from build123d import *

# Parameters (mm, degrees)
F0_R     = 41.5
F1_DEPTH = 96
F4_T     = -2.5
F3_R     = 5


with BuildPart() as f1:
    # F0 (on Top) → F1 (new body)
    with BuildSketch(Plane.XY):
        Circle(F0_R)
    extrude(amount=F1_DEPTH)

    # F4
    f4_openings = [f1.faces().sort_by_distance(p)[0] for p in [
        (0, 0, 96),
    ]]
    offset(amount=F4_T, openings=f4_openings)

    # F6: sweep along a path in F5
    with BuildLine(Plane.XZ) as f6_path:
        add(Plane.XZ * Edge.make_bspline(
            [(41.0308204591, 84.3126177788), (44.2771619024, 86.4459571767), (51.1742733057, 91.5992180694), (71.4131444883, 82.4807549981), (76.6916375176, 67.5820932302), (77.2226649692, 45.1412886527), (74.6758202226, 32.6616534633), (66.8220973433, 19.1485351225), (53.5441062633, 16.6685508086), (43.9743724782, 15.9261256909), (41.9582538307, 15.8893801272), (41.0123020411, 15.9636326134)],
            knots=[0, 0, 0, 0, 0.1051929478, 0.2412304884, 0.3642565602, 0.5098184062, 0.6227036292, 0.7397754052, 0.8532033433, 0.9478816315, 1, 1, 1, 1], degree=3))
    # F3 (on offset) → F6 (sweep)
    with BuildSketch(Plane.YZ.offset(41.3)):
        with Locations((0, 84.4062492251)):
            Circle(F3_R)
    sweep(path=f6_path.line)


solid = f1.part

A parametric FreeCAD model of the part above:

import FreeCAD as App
import Part
import Sketcher
Q = App.Units.Quantity


def faces_at(feature, points):
    """Names of the faces that lie closest to the given points."""
    faces = feature.Shape.Faces
    near = lambda p: min(range(len(faces)), key=lambda i: faces[i].distToShape(Part.Vertex(*p))[0])
    return sorted({f"Face{near(p) + 1}" for p in points})

doc = App.newDocument("Part")
params = doc.addObject("Spreadsheet::Sheet", "Params")
for row, (alias, value) in enumerate([
    ("sketch1_diameter", "83 mm"),
    ("pad1_length", "96 mm"),
    ("thickness_wall", "2.5 mm"),
    ("sketch2_diameter", "10 mm"),
], start=1):
    params.set(f"A{row}", alias)
    params.set(f"B{row}", "=" + value)
    params.setAlias(f"B{row}", alias)

body = doc.addObject("PartDesign::Body", "Body")

sketch1 = doc.addObject("Sketcher::SketchObject", "Sketch")
body.addObject(sketch1)
sketch1.AttachmentSupport = (doc.XY_Plane, [""])
sketch1.MapMode = "FlatFace"
sketch1.addGeometry(Part.Circle(App.Vector(0, 0, 0), App.Vector(0, 0, 1), 41.5), False)
sketch1.addConstraint(Sketcher.Constraint("Coincident", 0, 3, -1, 1))
sketch1.addConstraint(Sketcher.Constraint("Diameter", 0, Q("83 mm")))
sketch1.setExpression("Constraints[1]", "Params.sketch1_diameter")
pad1 = doc.addObject("PartDesign::Pad", "Pad")
body.addObject(pad1)
pad1.Profile = sketch1
pad1.setExpression("Length", "Params.pad1_length")
doc.recompute()

thickness = doc.addObject("PartDesign::Thickness", "Thickness")
body.addObject(thickness)
thickness.Base = (pad1, faces_at(pad1, [(0, 0, 96)]))
thickness.setExpression("Value", "Params.thickness_wall")
thickness.Reversed = True
thickness.Join = "Arc"

sketch2 = doc.addObject("Sketcher::SketchObject", "Sketch001")
body.addObject(sketch2)
sketch2.AttachmentSupport = (doc.YZ_Plane, [""])
sketch2.MapMode = "FlatFace"
sketch2.AttachmentOffset = App.Placement(App.Vector(0, 0, 41.3), App.Rotation())
sketch2.addGeometry(Part.Circle(App.Vector(0, 84.406249, 0), App.Vector(0, 0, 1), 5), False)
sketch2.addConstraint(Sketcher.Constraint("PointOnObject", 0, 3, -2))
sketch2.addConstraint(Sketcher.Constraint("Diameter", 0, Q("10 mm")))
sketch2.addConstraint(Sketcher.Constraint("DistanceY", -1, 1, 0, 3, Q("84.406249 mm")))
sketch2.setExpression("Constraints[1]", "Params.sketch2_diameter")

sketch3 = doc.addObject("Sketcher::SketchObject", "Sketch002")
body.addObject(sketch3)
sketch3.AttachmentSupport = (doc.XZ_Plane, [""])
sketch3.MapMode = "FlatFace"
sketch3.addGeometry(Part.BSplineCurve([App.Vector(41.03082, 84.312618, 0), App.Vector(44.277162, 86.445957, 0), App.Vector(51.174273, 91.599218, 0), App.Vector(71.413144, 82.480755, 0), App.Vector(76.691638, 67.582093, 0), App.Vector(77.222665, 45.141289, 0), App.Vector(74.67582, 32.661653, 0), App.Vector(66.822097, 19.148535, 0), App.Vector(53.544106, 16.668551, 0), App.Vector(43.974372, 15.926126, 0), App.Vector(41.958254, 15.88938, 0), App.Vector(41.012302, 15.963633, 0)], [4, 1, 1, 1, 1, 1, 1, 1, 1, 4], [0, 0.105192948, 0.241230488, 0.36425656, 0.509818406, 0.622703629, 0.739775405, 0.853203343, 0.947881632, 1], False, 3, [1, 1, 1, 1, 1, 1, 1, 1, 1, 1, 1, 1], False), False)
sketch3.addConstraint(Sketcher.Constraint("Block", 0))
doc.recompute()

additivepipe = doc.addObject("PartDesign::AdditivePipe", "AdditivePipe")
body.addObject(additivepipe)
additivepipe.Profile = sketch2
additivepipe.Spine = (sketch3, ["Edge1"])

doc.recompute()
